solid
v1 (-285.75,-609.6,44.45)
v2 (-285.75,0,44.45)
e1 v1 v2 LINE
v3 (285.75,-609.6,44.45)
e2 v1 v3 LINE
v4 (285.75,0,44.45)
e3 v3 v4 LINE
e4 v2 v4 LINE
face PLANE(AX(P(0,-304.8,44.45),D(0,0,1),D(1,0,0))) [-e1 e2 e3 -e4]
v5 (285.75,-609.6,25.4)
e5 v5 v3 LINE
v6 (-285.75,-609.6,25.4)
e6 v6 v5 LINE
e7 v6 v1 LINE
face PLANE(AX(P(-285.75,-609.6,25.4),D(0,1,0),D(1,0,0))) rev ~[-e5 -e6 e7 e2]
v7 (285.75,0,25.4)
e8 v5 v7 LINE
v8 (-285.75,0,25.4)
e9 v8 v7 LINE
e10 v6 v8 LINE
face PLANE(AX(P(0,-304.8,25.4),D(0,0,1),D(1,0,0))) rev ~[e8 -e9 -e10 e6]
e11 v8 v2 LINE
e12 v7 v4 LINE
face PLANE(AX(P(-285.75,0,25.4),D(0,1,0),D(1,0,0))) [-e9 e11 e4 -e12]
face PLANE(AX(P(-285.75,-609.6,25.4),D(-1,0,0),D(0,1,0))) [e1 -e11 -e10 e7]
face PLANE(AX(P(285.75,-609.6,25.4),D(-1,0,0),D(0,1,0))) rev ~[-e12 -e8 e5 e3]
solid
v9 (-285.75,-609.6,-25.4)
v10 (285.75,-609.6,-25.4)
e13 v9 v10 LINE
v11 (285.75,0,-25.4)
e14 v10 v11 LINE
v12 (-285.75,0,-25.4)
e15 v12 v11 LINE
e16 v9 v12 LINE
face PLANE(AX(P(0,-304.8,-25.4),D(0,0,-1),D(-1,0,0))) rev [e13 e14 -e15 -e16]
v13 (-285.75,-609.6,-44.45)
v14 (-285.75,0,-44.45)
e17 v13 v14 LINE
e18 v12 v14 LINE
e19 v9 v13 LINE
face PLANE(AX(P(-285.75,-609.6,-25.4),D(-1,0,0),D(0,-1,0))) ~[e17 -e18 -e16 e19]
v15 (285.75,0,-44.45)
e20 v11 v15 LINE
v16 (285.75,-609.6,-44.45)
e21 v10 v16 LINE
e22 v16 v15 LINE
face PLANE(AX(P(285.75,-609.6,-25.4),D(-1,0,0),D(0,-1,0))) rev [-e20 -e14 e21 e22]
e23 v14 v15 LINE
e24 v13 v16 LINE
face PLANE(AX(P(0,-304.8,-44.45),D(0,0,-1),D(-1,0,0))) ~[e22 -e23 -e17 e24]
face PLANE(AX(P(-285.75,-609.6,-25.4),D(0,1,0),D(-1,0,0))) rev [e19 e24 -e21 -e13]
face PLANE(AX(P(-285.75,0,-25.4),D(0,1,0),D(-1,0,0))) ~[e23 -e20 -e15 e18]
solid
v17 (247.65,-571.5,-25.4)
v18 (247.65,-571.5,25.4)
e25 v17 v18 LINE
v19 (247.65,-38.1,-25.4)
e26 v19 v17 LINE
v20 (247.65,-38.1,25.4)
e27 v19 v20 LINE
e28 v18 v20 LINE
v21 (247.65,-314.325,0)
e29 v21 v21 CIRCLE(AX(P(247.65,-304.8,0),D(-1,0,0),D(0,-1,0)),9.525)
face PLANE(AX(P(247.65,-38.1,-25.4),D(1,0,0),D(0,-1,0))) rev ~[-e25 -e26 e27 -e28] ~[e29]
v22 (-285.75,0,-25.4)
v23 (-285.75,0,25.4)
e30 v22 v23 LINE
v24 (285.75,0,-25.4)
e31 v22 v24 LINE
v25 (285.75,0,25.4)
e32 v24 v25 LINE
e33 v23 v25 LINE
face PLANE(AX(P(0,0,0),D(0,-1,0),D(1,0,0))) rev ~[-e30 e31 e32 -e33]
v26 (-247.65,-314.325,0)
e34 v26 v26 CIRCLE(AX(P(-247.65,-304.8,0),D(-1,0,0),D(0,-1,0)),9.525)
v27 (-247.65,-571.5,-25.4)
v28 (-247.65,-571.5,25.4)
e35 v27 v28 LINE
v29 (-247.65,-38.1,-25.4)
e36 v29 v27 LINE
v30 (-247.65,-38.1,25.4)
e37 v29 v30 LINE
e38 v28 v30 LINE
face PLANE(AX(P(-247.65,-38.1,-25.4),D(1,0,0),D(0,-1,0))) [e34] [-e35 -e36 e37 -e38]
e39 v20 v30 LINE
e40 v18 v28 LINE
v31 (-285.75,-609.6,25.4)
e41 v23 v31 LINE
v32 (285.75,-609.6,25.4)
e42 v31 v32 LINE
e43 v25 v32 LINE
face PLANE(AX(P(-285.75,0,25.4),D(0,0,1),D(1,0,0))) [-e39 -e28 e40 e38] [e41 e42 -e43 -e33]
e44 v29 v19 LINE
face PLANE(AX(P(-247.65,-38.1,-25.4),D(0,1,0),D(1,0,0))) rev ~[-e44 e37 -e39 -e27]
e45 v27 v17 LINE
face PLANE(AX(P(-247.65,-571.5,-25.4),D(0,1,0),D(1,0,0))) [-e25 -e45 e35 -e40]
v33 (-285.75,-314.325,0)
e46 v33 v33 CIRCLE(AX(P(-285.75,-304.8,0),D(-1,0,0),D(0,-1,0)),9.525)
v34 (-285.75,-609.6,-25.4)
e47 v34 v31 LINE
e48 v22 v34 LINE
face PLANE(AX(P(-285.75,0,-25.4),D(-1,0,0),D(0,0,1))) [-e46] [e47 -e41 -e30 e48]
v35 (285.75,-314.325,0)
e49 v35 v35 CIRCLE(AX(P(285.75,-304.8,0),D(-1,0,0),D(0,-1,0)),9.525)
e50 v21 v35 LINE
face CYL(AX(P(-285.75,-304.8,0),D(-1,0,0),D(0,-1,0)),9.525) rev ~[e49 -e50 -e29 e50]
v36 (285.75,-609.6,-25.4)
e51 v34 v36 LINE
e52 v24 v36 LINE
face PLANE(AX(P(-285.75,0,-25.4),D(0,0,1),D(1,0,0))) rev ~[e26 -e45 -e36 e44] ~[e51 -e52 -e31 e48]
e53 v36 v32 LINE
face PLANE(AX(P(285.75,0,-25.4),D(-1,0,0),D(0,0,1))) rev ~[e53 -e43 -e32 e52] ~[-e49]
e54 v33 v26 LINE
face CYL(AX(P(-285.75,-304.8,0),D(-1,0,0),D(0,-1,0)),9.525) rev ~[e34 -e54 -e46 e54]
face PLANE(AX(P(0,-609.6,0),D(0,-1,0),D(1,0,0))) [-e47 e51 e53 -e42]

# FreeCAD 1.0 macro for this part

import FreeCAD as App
import Part
import Sketcher

V = App.Vector
Q = App.Units.Quantity


def add_polygon(sketch, points):
    """Adds a closed chain of lines whose ends are joined by coincident constraints."""
    first, n = sketch.GeometryCount, len(points)
    for a, b in zip(points, points[1:] + points[:1]):
        sketch.addGeometry(Part.LineSegment(App.Vector(*a, 0), App.Vector(*b, 0)), False)
    for i in range(n):
        sketch.addConstraint(Sketcher.Constraint("Coincident", first + i, 2, first + (i + 1) % n, 1))

doc = App.newDocument("Part")
body = doc.addObject("PartDesign::Body", "Body")

sketch1 = doc.addObject("Sketcher::SketchObject", "Sketch")
body.addObject(sketch1)
sketch1.AttachmentSupport = (doc.XZ_Plane, [""])
sketch1.MapMode = "FlatFace"
add_polygon(sketch1, [(-286, 25), (-286, -25), (286, -25), (286, 25)])
sketch1.addConstraint([
    Sketcher.Constraint("Vertical", 0),
    Sketcher.Constraint("Horizontal", 1),
    Sketcher.Constraint("Vertical", 2),
    Sketcher.Constraint("Horizontal", 3),
    Sketcher.Constraint("Symmetric", 0, 2, 2, 2, -1, 1),
    Sketcher.Constraint("DistanceY", 0, 2, 0, 1, Q("2 in")),
    Sketcher.Constraint("DistanceX", 1, 1, 1, 2, Q("22.5 in")),
])
pad1 = doc.addObject("PartDesign::Pad", "Pad")
body.addObject(pad1)
pad1.Profile = sketch1
pad1.Length = Q("24 in")

sketch2 = doc.addObject("Sketcher::SketchObject", "Sketch001")
body.addObject(sketch2)
sketch2.AttachmentSupport = (doc.YZ_Plane, [""])
sketch2.MapMode = "FlatFace"
sketch2.AttachmentOffset = App.Placement(V(0, 0, -11.25 * 25.4), App.Rotation())
sketch2.addGeometry(Part.Circle(V(-305, 0, 0), V(0, 0, 1), 10), False)
sketch2.addConstraint([
    Sketcher.Constraint("PointOnObject", 0, 3, -1),
    Sketcher.Constraint("Diameter", 0, Q("0.75 in")),
    Sketcher.Constraint("DistanceX", 0, 3, -1, 1, Q("12 in")),
])
pocket1 = doc.addObject("PartDesign::Pocket", "Pocket")
body.addObject(pocket1)
pocket1.Profile = sketch2
pocket1.Type = "ThroughAll"
pocket1.Reversed = True

sketch3 = doc.addObject("Sketcher::SketchObject", "Sketch002")
body.addObject(sketch3)
sketch3.AttachmentSupport = (doc.XY_Plane, [""])
sketch3.MapMode = "FlatFace"
sketch3.AttachmentOffset = App.Placement(V(0, 0, -1 * 25.4), App.Rotation())
add_polygon(sketch3, [(-248, -572), (-248, -38), (248, -38), (248, -572)])
sketch3.addConstraint([
    Sketcher.Constraint("Vertical", 0),
    Sketcher.Constraint("Horizontal", 1),
    Sketcher.Constraint("Vertical", 2),
    Sketcher.Constraint("Horizontal", 3),
    Sketcher.Constraint("DistanceY", 0, 1, 0, 2, Q("21 in")),
    Sketcher.Constraint("DistanceX", 1, 1, 1, 2, Q("19.5 in")),
    Sketcher.Constraint("DistanceY", 0, 2, -1, 1, Q("1.5 in")),
    Sketcher.Constraint("DistanceX", 0, 2, -1, 1, Q("9.75 in")),
])
pocket2 = doc.addObject("PartDesign::Pocket", "Pocket001")
body.addObject(pocket2)
pocket2.Profile = sketch3
pocket2.Type = "ThroughAll"
pocket2.Reversed = True
body2 = doc.addObject("PartDesign::Body", "Body001")

sketch4 = doc.addObject("Sketcher::SketchObject", "Sketch003")
body2.addObject(sketch4)
sketch4.AttachmentSupport = (doc.getObject("XY_Plane001"), [""])
sketch4.MapMode = "FlatFace"
sketch4.AttachmentOffset = App.Placement(V(0, 0, 1 * 25.4), App.Rotation())
add_polygon(sketch4, [(-286, 0), (-286, -610), (286, -610), (286, 0)])
sketch4.addConstraint([
    Sketcher.Constraint("Vertical", 0),
    Sketcher.Constraint("Horizontal", 1),
    Sketcher.Constraint("Vertical", 2),
    Sketcher.Constraint("Horizontal", 3),
    Sketcher.Constraint("Symmetric", 2, 2, 3, 2, -1, 1),
    Sketcher.Constraint("DistanceY", 0, 2, 0, 1, Q("24 in")),
    Sketcher.Constraint("DistanceX", 1, 1, 1, 2, Q("22.5 in")),
])
pad2 = doc.addObject("PartDesign::Pad", "Pad001")
body2.addObject(pad2)
pad2.Profile = sketch4
pad2.Length = Q("0.75 in")
body3 = doc.addObject("PartDesign::Body", "Body002")
doc.recompute()

mirroring = doc.addObject("Part::Mirroring", "Mirroring")
mirroring.Source = body2
mirroring.Base = V(0, 0, 0)
mirroring.Normal = V(0, 0, 1)
body3.BaseFeature = mirroring
doc.recompute()
mirroring.Visibility = False

doc.recompute()
